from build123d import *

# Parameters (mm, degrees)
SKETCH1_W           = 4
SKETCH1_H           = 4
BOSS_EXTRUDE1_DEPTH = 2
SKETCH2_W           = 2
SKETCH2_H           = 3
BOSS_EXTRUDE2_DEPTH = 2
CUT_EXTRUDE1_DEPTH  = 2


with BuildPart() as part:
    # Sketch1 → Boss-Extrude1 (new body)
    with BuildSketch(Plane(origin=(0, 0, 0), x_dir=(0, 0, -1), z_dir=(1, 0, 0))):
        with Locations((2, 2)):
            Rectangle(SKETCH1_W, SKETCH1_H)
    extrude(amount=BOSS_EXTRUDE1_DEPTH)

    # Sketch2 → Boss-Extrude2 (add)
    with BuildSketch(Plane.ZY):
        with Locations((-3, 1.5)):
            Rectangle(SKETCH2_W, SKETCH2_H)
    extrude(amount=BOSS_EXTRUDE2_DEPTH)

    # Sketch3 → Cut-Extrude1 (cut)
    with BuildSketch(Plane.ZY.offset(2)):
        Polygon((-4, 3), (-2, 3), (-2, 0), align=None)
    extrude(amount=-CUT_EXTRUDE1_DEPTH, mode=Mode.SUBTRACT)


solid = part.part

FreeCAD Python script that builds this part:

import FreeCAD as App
import Part
import Sketcher
from FreeCAD import Vector

doc = App.newDocument("Part")
body = doc.addObject("PartDesign::Body", "Body")

# Sketch on YZ plane
sketch1 = doc.addObject("Sketcher::SketchObject", "Sketch")
body.addObject(sketch1)
sketch1.AttachmentSupport = (doc.YZ_Plane, [""])
sketch1.MapMode = "FlatFace"
sketch1.addGeometry([
    Part.LineSegment(Vector(4, 0, 0), Vector(0, 0, 0)),
    Part.LineSegment(Vector(0, 0, 0), Vector(0, -4, 0)),
    Part.LineSegment(Vector(0, -4, 0), Vector(4, -4, 0)),
    Part.LineSegment(Vector(4, -4, 0), Vector(4, 0, 0)),
], False)
sketch1.addConstraint([
    Sketcher.Constraint("Coincident", 0, 2, 1, 1),
    Sketcher.Constraint("Coincident", 1, 2, 2, 1),
    Sketcher.Constraint("Coincident", 2, 2, 3, 1),
    Sketcher.Constraint("Coincident", 3, 2, 0, 1),
    Sketcher.Constraint("Horizontal", 0),
    Sketcher.Constraint("Vertical", 1),
    Sketcher.Constraint("Horizontal", 2),
    Sketcher.Constraint("Vertical", 3),
    Sketcher.Constraint("Coincident", 0, 2, -1, 1),
    Sketcher.Constraint("Equal", 2, 1),
    Sketcher.Constraint("DistanceX", 0, 2, 0, 1, 4.0),
])
pad1 = doc.addObject("PartDesign::Pad", "Pad")
body.addObject(pad1)
pad1.Profile = sketch1
pad1.Length = 2

# Sketch on YZ plane
sketch2 = doc.addObject("Sketcher::SketchObject", "Sketch001")
body.addObject(sketch2)
sketch2.AttachmentSupport = (doc.YZ_Plane, [""])
sketch2.MapMode = "FlatFace"
sketch2.addGeometry([
    Part.LineSegment(Vector(3, -4, 0), Vector(0, -4, 0)),
    Part.LineSegment(Vector(0, -4, 0), Vector(0, -2, 0)),
    Part.LineSegment(Vector(0, -2, 0), Vector(3, -2, 0)),
    Part.LineSegment(Vector(3, -2, 0), Vector(3, -4, 0)),
], False)
sketch2.addConstraint([
    Sketcher.Constraint("Coincident", 0, 2, 1, 1),
    Sketcher.Constraint("Coincident", 1, 2, 2, 1),
    Sketcher.Constraint("Coincident", 2, 2, 3, 1),
    Sketcher.Constraint("Coincident", 3, 2, 0, 1),
    Sketcher.Constraint("Horizontal", 0),
    Sketcher.Constraint("Vertical", 1),
    Sketcher.Constraint("Horizontal", 2),
    Sketcher.Constraint("Vertical", 3),
    Sketcher.Constraint("PointOnObject", 0, 2, -2),
    Sketcher.Constraint("DistanceX", 0, 2, 0, 1, 3.0),
    Sketcher.Constraint("DistanceY", 1, 1, 1, 2, 2.0),
    Sketcher.Constraint("DistanceY", 0, 2, -1, 1, 4.0),
])
pad2 = doc.addObject("PartDesign::Pad", "Pad001")
body.addObject(pad2)
pad2.Profile = sketch2
pad2.Length = 2
pad2.Reversed = True

# Sketch on YZ plane
sketch3 = doc.addObject("Sketcher::SketchObject", "Sketch002")
body.addObject(sketch3)
sketch3.AttachmentSupport = (doc.YZ_Plane, [""])
sketch3.MapMode = "FlatFace"
sketch3.AttachmentOffset = App.Placement(Vector(0, 0, -2), App.Rotation())
sketch3.addGeometry([
    Part.LineSegment(Vector(3, -2, 0), Vector(3, -4, 0)),
    Part.LineSegment(Vector(3, -4, 0), Vector(0, -2, 0)),
    Part.LineSegment(Vector(0, -2, 0), Vector(3, -2, 0)),
], False)
sketch3.addConstraint([
    Sketcher.Constraint("Coincident", 0, 2, 1, 1),
    Sketcher.Constraint("Coincident", 1, 2, 2, 1),
    Sketcher.Constraint("Coincident", 2, 2, 0, 1),
    Sketcher.Constraint("Vertical", 0),
    Sketcher.Constraint("Horizontal", 2),
    Sketcher.Constraint("PointOnObject", 1, 2, -2),
    Sketcher.Constraint("DistanceX", 2, 1, 2, 2, 3.0),
    Sketcher.Constraint("DistanceY", 0, 2, 0, 1, 2.0),
    Sketcher.Constraint("DistanceY", 0, 2, -1, 1, 4.0),
])
pocket1 = doc.addObject("PartDesign::Pocket", "Pocket")
body.addObject(pocket1)
pocket1.Profile = sketch3
pocket1.Length = 2
pocket1.Reversed = True

doc.recompute()
